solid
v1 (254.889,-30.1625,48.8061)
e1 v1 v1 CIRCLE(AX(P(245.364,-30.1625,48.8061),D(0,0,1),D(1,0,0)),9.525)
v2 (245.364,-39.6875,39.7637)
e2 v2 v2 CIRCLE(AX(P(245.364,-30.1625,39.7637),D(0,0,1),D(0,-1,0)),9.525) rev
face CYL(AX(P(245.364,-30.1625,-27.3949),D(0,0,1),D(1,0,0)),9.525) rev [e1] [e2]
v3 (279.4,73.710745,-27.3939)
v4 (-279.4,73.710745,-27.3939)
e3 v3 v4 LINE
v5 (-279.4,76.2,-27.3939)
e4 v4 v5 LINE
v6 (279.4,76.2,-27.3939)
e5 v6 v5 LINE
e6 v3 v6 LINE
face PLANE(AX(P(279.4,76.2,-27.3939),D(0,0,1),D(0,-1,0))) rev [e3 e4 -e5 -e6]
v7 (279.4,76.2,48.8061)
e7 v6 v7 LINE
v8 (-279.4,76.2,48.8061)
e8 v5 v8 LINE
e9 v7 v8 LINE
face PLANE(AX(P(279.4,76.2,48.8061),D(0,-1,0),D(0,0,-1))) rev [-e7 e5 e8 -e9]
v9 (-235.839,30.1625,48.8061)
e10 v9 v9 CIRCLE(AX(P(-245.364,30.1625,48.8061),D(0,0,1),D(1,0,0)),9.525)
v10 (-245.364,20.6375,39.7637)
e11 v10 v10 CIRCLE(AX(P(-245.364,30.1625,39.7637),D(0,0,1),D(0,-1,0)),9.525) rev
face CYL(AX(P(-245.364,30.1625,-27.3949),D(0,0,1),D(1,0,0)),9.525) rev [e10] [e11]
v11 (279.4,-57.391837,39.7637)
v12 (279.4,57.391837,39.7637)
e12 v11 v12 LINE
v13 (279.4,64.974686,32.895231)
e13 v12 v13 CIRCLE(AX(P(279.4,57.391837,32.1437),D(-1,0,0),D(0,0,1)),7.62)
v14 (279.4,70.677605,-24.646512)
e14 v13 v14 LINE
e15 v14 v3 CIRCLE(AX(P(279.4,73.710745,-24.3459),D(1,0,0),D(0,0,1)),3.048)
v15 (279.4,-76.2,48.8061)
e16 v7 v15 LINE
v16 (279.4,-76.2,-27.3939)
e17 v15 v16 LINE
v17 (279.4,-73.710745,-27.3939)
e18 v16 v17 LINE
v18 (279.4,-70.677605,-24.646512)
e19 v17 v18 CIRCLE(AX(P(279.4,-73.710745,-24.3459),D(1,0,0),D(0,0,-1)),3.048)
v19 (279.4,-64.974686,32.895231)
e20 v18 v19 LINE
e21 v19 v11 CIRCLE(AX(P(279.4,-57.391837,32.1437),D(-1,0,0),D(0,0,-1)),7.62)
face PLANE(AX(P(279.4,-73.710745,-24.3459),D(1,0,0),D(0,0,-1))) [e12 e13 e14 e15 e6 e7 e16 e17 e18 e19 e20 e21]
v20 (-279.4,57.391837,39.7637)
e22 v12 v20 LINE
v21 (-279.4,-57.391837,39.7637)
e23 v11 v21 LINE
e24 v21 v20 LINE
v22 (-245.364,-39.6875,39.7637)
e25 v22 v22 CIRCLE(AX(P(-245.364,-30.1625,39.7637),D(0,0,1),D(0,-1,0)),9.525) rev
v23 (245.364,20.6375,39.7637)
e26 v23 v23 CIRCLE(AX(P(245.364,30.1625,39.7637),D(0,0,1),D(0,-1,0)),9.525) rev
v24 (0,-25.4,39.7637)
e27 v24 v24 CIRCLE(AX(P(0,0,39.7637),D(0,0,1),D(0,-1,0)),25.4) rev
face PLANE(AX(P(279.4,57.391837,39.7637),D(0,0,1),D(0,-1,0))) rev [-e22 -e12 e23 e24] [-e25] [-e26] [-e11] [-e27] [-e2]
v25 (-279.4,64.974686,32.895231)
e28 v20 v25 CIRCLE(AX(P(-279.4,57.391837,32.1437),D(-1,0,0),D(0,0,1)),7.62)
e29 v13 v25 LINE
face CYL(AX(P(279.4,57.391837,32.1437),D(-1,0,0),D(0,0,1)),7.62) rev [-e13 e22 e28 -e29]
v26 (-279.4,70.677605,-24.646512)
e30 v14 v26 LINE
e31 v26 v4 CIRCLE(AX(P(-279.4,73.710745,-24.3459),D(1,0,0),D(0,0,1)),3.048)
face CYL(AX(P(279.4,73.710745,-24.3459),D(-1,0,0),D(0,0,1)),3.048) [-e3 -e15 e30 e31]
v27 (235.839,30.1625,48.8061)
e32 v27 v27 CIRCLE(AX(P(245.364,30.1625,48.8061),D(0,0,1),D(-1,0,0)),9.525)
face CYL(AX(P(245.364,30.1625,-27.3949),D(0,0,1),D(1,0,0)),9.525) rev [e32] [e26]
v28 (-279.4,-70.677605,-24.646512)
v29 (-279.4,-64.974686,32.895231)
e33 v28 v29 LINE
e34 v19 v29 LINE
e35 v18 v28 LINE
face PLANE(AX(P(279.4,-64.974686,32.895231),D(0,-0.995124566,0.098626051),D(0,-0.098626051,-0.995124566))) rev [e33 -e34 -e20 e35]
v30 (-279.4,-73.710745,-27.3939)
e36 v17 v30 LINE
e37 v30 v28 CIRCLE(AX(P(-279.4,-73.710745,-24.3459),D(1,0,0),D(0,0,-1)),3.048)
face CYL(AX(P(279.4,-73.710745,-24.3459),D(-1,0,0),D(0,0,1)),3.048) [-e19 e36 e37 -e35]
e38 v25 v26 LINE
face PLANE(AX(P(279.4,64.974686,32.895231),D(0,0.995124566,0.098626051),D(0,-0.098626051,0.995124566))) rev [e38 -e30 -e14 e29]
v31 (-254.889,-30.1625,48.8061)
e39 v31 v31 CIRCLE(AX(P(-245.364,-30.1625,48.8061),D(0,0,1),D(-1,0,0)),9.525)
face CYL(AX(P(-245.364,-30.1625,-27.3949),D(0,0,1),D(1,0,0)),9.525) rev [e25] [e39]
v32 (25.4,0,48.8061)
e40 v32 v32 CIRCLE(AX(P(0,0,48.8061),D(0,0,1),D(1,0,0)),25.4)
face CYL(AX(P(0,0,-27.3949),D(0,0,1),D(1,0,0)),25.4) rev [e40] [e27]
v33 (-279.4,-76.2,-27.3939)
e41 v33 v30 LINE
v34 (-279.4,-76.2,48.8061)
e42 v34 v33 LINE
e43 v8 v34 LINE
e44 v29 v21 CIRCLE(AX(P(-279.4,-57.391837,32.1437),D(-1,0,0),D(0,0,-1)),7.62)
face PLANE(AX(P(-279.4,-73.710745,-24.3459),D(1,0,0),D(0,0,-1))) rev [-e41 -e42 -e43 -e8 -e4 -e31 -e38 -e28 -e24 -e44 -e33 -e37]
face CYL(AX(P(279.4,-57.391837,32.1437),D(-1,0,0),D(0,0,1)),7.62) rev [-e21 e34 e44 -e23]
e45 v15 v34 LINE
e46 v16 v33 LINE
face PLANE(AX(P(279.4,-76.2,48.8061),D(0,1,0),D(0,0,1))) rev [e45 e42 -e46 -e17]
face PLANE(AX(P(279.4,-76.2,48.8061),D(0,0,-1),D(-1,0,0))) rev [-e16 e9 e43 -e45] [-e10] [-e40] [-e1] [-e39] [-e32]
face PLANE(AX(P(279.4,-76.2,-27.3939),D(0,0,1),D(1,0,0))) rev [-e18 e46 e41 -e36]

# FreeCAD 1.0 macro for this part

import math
import FreeCAD as App
import Part
import Sketcher
from FreeCAD import Vector
Q = App.Units.Quantity

doc = App.newDocument("Part")
body = doc.addObject("PartDesign::Body", "Body")

# Sketch on YZ plane
sketch1 = body.newObject("Sketcher::SketchObject", "Sketch")
sketch1.AttachmentSupport = (doc.getObject("YZ_Plane"), [""])
sketch1.MapMode = "FlatFace"
sketch1.addGeometry([
    Part.LineSegment(Vector(76.2, 48.8, 0), Vector(-76.2, 48.8, 0)),  # 0
    Part.LineSegment(Vector(-76.2, 48.8, 0), Vector(-76.2, -27.4, 0)),  # 1
    Part.LineSegment(Vector(-76.2, -27.4, 0), Vector(-73.7, -27.4, 0)),  # 2
    Part.ArcOfCircle(Part.Circle(Vector(-73.7, -24.3, 0), Vector(0, 0, 1), 3), math.radians(-90), math.radians(-6)),  # 3
    Part.LineSegment(Vector(-70.7, -24.6, 0), Vector(-65, 32.9, 0)),  # 4
    Part.ArcOfCircle(Part.Circle(Vector(-57.4, 32.1, 0), Vector(0, 0, 1), 7.6), math.radians(90), math.radians(174)),  # 5
    Part.LineSegment(Vector(-57.4, 39.8, 0), Vector(57.4, 39.8, 0)),  # 6
    Part.ArcOfCircle(Part.Circle(Vector(57.4, 32.1, 0), Vector(0, 0, 1), 7.6), math.radians(6), math.radians(90)),  # 7
    Part.LineSegment(Vector(65, 32.9, 0), Vector(70.7, -24.6, 0)),  # 8
    Part.ArcOfCircle(Part.Circle(Vector(73.7, -24.3, 0), Vector(0, 0, 1), 3), math.radians(-174), math.radians(-90)),  # 9
    Part.LineSegment(Vector(73.7, -27.4, 0), Vector(76.2, -27.4, 0)),  # 10
    Part.LineSegment(Vector(76.2, -27.4, 0), Vector(76.2, 48.8, 0)),  # 11
], False)
sketch1.addConstraint([
    Sketcher.Constraint("Coincident", 0, 2, 1, 1),
    Sketcher.Constraint("Coincident", 1, 2, 2, 1),
    Sketcher.Constraint("Tangent", 2, 2, 3, 1),
    Sketcher.Constraint("Tangent", 3, 2, 4, 1),
    Sketcher.Constraint("Tangent", 4, 2, 5, 2),
    Sketcher.Constraint("Tangent", 5, 1, 6, 1),
    Sketcher.Constraint("Tangent", 6, 2, 7, 2),
    Sketcher.Constraint("Tangent", 7, 1, 8, 1),
    Sketcher.Constraint("Tangent", 8, 2, 9, 1),
    Sketcher.Constraint("Tangent", 9, 2, 10, 1),
    Sketcher.Constraint("Coincident", 10, 2, 11, 1),
    Sketcher.Constraint("Coincident", 11, 2, 0, 1),
    Sketcher.Constraint("Horizontal", 0),
    Sketcher.Constraint("Vertical", 1),
    Sketcher.Constraint("Horizontal", 2),
    Sketcher.Constraint("Horizontal", 6),
    Sketcher.Constraint("Horizontal", 10),
    Sketcher.Constraint("Vertical", 11),
    Sketcher.Constraint("Equal", 5, 7),
    Sketcher.Constraint("Equal", 3, 9),
    Sketcher.Constraint("Symmetric", 3, 3, 9, 3, -2),
    Sketcher.Constraint("Horizontal", 4, 2, 7, 1),
    Sketcher.Constraint("Equal", 2, 10),
    Sketcher.Constraint("Radius", 5, Q("0.3 in")),
    Sketcher.Constraint("DistanceX", 0, 2, 0, 1, Q("6 in")),
    Sketcher.Constraint("DistanceY", 1, 2, 1, 1, Q("3 in")),
    Sketcher.Constraint("Radius", 3, Q("0.12 in")),
    Sketcher.Constraint("DistanceY", 3, 3, 5, 3, Q("2.224 in")),
    Sketcher.Constraint("DistanceY", 3, 3, -1, 1, Q("0.9585 in")),
    Sketcher.Constraint("Distance", 4, Q("57.823658 mm")),
    Sketcher.Constraint("DistanceX", 2, 1, 2, 2, Q("2.489255 mm")),
])
pad1 = body.newObject("PartDesign::Pad", "Pad")
pad1.Profile = sketch1
pad1.Length = Q("22 in")
pad1.Midplane = True

# Sketch on XY plane
sketch2 = body.newObject("Sketcher::SketchObject", "Sketch001")
sketch2.AttachmentSupport = (doc.getObject("XY_Plane"), [""])
sketch2.MapMode = "FlatFace"
sketch2.AttachmentOffset = App.Placement(Vector(0, 0, 1.9215 * 25.4), App.Rotation())
sketch2.addGeometry(Part.Circle(Vector(0, 0, 0), Vector(0, 0, 1), 25), False)
sketch2.addConstraint([
    Sketcher.Constraint("Coincident", 0, 3, -1, 1),
    Sketcher.Constraint("Diameter", 0, Q("2 in")),
])
pocket1 = body.newObject("PartDesign::Pocket", "Pocket")
pocket1.Profile = sketch2
pocket1.Type = "UpToFirst"

# Sketch on XY plane
sketch3 = body.newObject("Sketcher::SketchObject", "Sketch002")
sketch3.AttachmentSupport = (doc.getObject("XY_Plane"), [""])
sketch3.MapMode = "FlatFace"
sketch3.AttachmentOffset = App.Placement(Vector(0, 0, 1.9215 * 25.4), App.Rotation())
sketch3.addGeometry(Part.Circle(Vector(-245, 30, 0), Vector(0, 0, 1), 10), False)
sketch3.addConstraint([
    Sketcher.Constraint("Diameter", 0, Q("0.75 in")),
    Sketcher.Constraint("DistanceX", 0, 3, -1, 1, Q("9.66 in")),
    Sketcher.Constraint("DistanceY", -1, 1, 0, 3, Q("1.1875 in")),
])
pocket2 = body.newObject("PartDesign::Pocket", "Pocket001")
pocket2.Profile = sketch3
pocket2.Type = "UpToFirst"

# Sketch on XY plane
sketch4 = body.newObject("Sketcher::SketchObject", "Sketch003")
sketch4.AttachmentSupport = (doc.getObject("XY_Plane"), [""])
sketch4.MapMode = "FlatFace"
sketch4.AttachmentOffset = App.Placement(Vector(0, 0, 1.9215 * 25.4), App.Rotation())
sketch4.addGeometry(Part.Circle(Vector(245, 30, 0), Vector(0, 0, 1), 10), False)
sketch4.addConstraint([
    Sketcher.Constraint("Diameter", 0, Q("0.75 in")),
    Sketcher.Constraint("DistanceX", -1, 1, 0, 3, Q("9.66 in")),
    Sketcher.Constraint("DistanceY", -1, 1, 0, 3, Q("1.1875 in")),
])
pocket3 = body.newObject("PartDesign::Pocket", "Pocket002")
pocket3.Profile = sketch4
pocket3.Type = "UpToFirst"

# Sketch on XY plane
sketch5 = body.newObject("Sketcher::SketchObject", "Sketch004")
sketch5.AttachmentSupport = (doc.getObject("XY_Plane"), [""])
sketch5.MapMode = "FlatFace"
sketch5.AttachmentOffset = App.Placement(Vector(0, 0, 1.9215 * 25.4), App.Rotation())
sketch5.addGeometry(Part.Circle(Vector(245, -30, 0), Vector(0, 0, 1), 10), False)
sketch5.addConstraint([
    Sketcher.Constraint("Diameter", 0, Q("0.75 in")),
    Sketcher.Constraint("DistanceX", -1, 1, 0, 3, Q("9.66 in")),
    Sketcher.Constraint("DistanceY", 0, 3, -1, 1, Q("1.1875 in")),
])
pocket4 = body.newObject("PartDesign::Pocket", "Pocket003")
pocket4.Profile = sketch5
pocket4.Type = "UpToFirst"

# Sketch on XY plane
sketch6 = body.newObject("Sketcher::SketchObject", "Sketch005")
sketch6.AttachmentSupport = (doc.getObject("XY_Plane"), [""])
sketch6.MapMode = "FlatFace"
sketch6.AttachmentOffset = App.Placement(Vector(0, 0, 1.9215 * 25.4), App.Rotation())
sketch6.addGeometry(Part.Circle(Vector(-245, -30, 0), Vector(0, 0, 1), 10), False)
sketch6.addConstraint([
    Sketcher.Constraint("Diameter", 0, Q("0.75 in")),
    Sketcher.Constraint("DistanceX", 0, 3, -1, 1, Q("9.66 in")),
    Sketcher.Constraint("DistanceY", 0, 3, -1, 1, Q("1.1875 in")),
])
pocket5 = body.newObject("PartDesign::Pocket", "Pocket004")
pocket5.Profile = sketch6
pocket5.Type = "UpToFirst"

doc.recompute()
